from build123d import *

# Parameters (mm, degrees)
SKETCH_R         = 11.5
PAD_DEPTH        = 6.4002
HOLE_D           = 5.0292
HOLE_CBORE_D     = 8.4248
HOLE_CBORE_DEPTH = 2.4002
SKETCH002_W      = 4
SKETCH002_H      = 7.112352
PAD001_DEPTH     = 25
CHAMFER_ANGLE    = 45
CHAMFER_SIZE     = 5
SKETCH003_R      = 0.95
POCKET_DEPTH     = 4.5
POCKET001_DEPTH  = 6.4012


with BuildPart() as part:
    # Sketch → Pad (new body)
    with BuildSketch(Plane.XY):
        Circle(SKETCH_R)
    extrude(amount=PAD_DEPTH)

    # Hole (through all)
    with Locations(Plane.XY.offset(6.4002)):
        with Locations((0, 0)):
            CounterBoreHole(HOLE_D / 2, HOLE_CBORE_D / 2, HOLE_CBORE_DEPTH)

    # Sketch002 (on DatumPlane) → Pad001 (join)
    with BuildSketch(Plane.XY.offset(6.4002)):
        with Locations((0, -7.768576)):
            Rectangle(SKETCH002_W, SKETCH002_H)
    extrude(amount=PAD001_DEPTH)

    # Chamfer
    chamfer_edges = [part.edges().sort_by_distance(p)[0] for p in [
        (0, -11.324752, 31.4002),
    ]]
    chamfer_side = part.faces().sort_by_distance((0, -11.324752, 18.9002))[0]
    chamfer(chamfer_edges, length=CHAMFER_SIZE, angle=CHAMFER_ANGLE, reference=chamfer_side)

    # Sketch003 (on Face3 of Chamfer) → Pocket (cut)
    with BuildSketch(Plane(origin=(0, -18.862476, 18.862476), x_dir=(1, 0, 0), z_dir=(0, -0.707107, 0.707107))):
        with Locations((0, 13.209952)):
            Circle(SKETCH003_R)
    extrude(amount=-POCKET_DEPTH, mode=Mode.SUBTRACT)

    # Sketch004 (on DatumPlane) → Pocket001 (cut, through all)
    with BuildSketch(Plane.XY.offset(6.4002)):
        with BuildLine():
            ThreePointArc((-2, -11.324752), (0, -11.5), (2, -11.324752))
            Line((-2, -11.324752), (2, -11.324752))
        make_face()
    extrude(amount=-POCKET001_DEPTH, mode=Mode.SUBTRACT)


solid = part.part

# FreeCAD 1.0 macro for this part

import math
import FreeCAD as App
import Part
import Sketcher


def edges_at(feature, points):
    """Names of the edges that pass closest to the given points."""
    edges = feature.Shape.Edges
    near = lambda p: min(range(len(edges)), key=lambda i: edges[i].distToShape(Part.Vertex(*p))[0])
    return sorted({f"Edge{near(p) + 1}" for p in points})


def add_polygon(sketch, points):
    """Adds a closed chain of lines whose ends are joined by coincident constraints."""
    first, n = sketch.GeometryCount, len(points)
    for a, b in zip(points, points[1:] + points[:1]):
        sketch.addGeometry(Part.LineSegment(App.Vector(*a, 0), App.Vector(*b, 0)), False)
    for i in range(n):
        sketch.addConstraint(Sketcher.Constraint("Coincident", first + i, 2, first + (i + 1) % n, 1))

doc = App.newDocument("Part")
params = doc.addObject("Spreadsheet::Sheet", "Params")
for row, (alias, value) in enumerate([
    ("sketch1_diameter", "23 mm"),
    ("pad1_length", "6.4002 mm"),
    ("hole_diameter", "5.0292 mm"),
    ("hole_cbore_diameter", "8.4248 mm"),
    ("hole_cbore_depth", "2.4002 mm"),
    ("sketch3_width", "4 mm"),
    ("pad2_length", "25 mm"),
    ("chamfer_size", "5 mm"),
    ("sketch4_diameter", "1.9 mm"),
    ("pocket1_length", "4.5 mm"),
    ("sketch5_width", "4 mm"),
], start=1):
    params.set(f"A{row}", alias)
    params.set(f"B{row}", "=" + value)
    params.setAlias(f"B{row}", alias)

body = doc.addObject("PartDesign::Body", "Body")

# Sketch on XY plane
sketch1 = doc.addObject("Sketcher::SketchObject", "Sketch")
body.addObject(sketch1)
sketch1.AttachmentSupport = (doc.XY_Plane, [""])
sketch1.MapMode = "FlatFace"
sketch1.addGeometry(Part.Circle(App.Vector(0, 0, 0), App.Vector(0, 0, 1), 12), False)
sketch1.addConstraint([
    Sketcher.Constraint("Coincident", 0, 3, -1, 1),
    Sketcher.Constraint("Diameter", 0, 23.0),
])
sketch1.setExpression("Constraints[1]", "Params.sketch1_diameter")
pad1 = doc.addObject("PartDesign::Pad", "Pad")
body.addObject(pad1)
pad1.Profile = sketch1
pad1.setExpression("Length", "Params.pad1_length")

# Sketch on XY plane
sketch2 = doc.addObject("Sketcher::SketchObject", "Sketch001")
body.addObject(sketch2)
sketch2.AttachmentSupport = (doc.XY_Plane, [""])
sketch2.MapMode = "FlatFace"
sketch2.AttachmentOffset = App.Placement(App.Vector(0, 0, 6.4002), App.Rotation())
sketch2.addGeometry(Part.Circle(App.Vector(0, 0, 0), App.Vector(0, 0, 1), 2.5), False)
sketch2.addConstraint([
    Sketcher.Constraint("Coincident", 0, 3, -1, 1),
    Sketcher.Constraint("Diameter", 0, 5.0292),
])
doc.recompute()
hole = doc.addObject("PartDesign::Hole", "Hole")
body.addObject(hole)
hole.Profile = sketch2
hole.ThreadType = "None"
hole.setExpression("Diameter", "Params.hole_diameter")
hole.DepthType = "ThroughAll"
hole.HoleCutType = "Counterbore"
hole.setExpression("HoleCutDiameter", "Params.hole_cbore_diameter")
hole.setExpression("HoleCutDepth", "Params.hole_cbore_depth")

# Sketch on XY plane
sketch3 = doc.addObject("Sketcher::SketchObject", "Sketch002")
body.addObject(sketch3)
sketch3.AttachmentSupport = (doc.XY_Plane, [""])
sketch3.MapMode = "FlatFace"
sketch3.AttachmentOffset = App.Placement(App.Vector(0, 0, 6.4002), App.Rotation())
add_polygon(sketch3, [(-2, -4.2), (-2, -11.3), (2, -11.3), (2, -4.2)])  # lines 0-3
sketch3.addConstraint([
    Sketcher.Constraint("Vertical", 0),
    Sketcher.Constraint("Horizontal", 1),
    Sketcher.Constraint("Vertical", 2),
    Sketcher.Constraint("Horizontal", 3),
    Sketcher.Constraint("DistanceX", 1, 1, 1, 2, 4.0),
    Sketcher.Constraint("DistanceX", 0, 2, -1, 1, 2.0),
    Sketcher.Constraint("DistanceY", 2, 2, -1, 1, 4.2124),
    Sketcher.Constraint("DistanceY", 0, 2, 0, 1, 7.112352),
])
sketch3.setExpression("Constraints[8]", "Params.sketch3_width")
pad2 = doc.addObject("PartDesign::Pad", "Pad001")
body.addObject(pad2)
pad2.Profile = sketch3
pad2.setExpression("Length", "Params.pad2_length")
doc.recompute()

chamfer = doc.addObject("PartDesign::Chamfer", "Chamfer")
body.addObject(chamfer)
chamfer.Base = (pad2, edges_at(pad2, [(0, -11.325, 31.4)]))
chamfer.setExpression("Size", "Params.chamfer_size")

# Sketch on an angled plane
sketch4 = doc.addObject("Sketcher::SketchObject", "Sketch003")
body.addObject(sketch4)
sketch4.Placement = App.Placement(App.Vector(0, -18.862476, 18.862476), App.Rotation(App.Vector(1, 0, 0), App.Vector(0, 0.707106781, 0.707106781), App.Vector(0, -0.707106781, 0.707106781), "ZXY"))
sketch4.addGeometry(Part.Circle(App.Vector(0, 13.2, 0), App.Vector(0, 0, 1), 0.9), False)
sketch4.addConstraint([
    Sketcher.Constraint("PointOnObject", 0, 3, -2),
    Sketcher.Constraint("Diameter", 0, 1.9),
    Sketcher.Constraint("DistanceY", -1, 1, 0, 3, 13.209952),
])
sketch4.setExpression("Constraints[1]", "Params.sketch4_diameter")
pocket1 = doc.addObject("PartDesign::Pocket", "Pocket")
body.addObject(pocket1)
pocket1.Profile = sketch4
pocket1.setExpression("Length", "Params.pocket1_length")

# Sketch on XY plane
sketch5 = doc.addObject("Sketcher::SketchObject", "Sketch004")
body.addObject(sketch5)
sketch5.AttachmentSupport = (doc.XY_Plane, [""])
sketch5.MapMode = "FlatFace"
sketch5.AttachmentOffset = App.Placement(App.Vector(0, 0, 6.4002), App.Rotation())
sketch5.addGeometry([
    Part.ArcOfCircle(Part.Circle(App.Vector(0, 0, 0), App.Vector(0, 0, 1), 11.5), math.radians(-100), math.radians(-80)),
    Part.LineSegment(App.Vector(2, -11.3, 0), App.Vector(-2, -11.3, 0)),
], False)
sketch5.addConstraint([
    Sketcher.Constraint("Coincident", 0, 1, 1, 2),
    Sketcher.Constraint("Coincident", 1, 1, 0, 2),
    Sketcher.Constraint("Horizontal", 1),
    Sketcher.Constraint("PointOnObject", 0, 3, -2),
    Sketcher.Constraint("DistanceX", 1, 2, 1, 1, 4.0),
    Sketcher.Constraint("Radius", 0, 11.500022),
    Sketcher.Constraint("DistanceY", 0, 1, -1, 1, 11.324752),
])
sketch5.setExpression("Constraints[4]", "Params.sketch5_width")
pocket2 = doc.addObject("PartDesign::Pocket", "Pocket001")
body.addObject(pocket2)
pocket2.Profile = sketch5
pocket2.Type = "ThroughAll"

doc.recompute()
